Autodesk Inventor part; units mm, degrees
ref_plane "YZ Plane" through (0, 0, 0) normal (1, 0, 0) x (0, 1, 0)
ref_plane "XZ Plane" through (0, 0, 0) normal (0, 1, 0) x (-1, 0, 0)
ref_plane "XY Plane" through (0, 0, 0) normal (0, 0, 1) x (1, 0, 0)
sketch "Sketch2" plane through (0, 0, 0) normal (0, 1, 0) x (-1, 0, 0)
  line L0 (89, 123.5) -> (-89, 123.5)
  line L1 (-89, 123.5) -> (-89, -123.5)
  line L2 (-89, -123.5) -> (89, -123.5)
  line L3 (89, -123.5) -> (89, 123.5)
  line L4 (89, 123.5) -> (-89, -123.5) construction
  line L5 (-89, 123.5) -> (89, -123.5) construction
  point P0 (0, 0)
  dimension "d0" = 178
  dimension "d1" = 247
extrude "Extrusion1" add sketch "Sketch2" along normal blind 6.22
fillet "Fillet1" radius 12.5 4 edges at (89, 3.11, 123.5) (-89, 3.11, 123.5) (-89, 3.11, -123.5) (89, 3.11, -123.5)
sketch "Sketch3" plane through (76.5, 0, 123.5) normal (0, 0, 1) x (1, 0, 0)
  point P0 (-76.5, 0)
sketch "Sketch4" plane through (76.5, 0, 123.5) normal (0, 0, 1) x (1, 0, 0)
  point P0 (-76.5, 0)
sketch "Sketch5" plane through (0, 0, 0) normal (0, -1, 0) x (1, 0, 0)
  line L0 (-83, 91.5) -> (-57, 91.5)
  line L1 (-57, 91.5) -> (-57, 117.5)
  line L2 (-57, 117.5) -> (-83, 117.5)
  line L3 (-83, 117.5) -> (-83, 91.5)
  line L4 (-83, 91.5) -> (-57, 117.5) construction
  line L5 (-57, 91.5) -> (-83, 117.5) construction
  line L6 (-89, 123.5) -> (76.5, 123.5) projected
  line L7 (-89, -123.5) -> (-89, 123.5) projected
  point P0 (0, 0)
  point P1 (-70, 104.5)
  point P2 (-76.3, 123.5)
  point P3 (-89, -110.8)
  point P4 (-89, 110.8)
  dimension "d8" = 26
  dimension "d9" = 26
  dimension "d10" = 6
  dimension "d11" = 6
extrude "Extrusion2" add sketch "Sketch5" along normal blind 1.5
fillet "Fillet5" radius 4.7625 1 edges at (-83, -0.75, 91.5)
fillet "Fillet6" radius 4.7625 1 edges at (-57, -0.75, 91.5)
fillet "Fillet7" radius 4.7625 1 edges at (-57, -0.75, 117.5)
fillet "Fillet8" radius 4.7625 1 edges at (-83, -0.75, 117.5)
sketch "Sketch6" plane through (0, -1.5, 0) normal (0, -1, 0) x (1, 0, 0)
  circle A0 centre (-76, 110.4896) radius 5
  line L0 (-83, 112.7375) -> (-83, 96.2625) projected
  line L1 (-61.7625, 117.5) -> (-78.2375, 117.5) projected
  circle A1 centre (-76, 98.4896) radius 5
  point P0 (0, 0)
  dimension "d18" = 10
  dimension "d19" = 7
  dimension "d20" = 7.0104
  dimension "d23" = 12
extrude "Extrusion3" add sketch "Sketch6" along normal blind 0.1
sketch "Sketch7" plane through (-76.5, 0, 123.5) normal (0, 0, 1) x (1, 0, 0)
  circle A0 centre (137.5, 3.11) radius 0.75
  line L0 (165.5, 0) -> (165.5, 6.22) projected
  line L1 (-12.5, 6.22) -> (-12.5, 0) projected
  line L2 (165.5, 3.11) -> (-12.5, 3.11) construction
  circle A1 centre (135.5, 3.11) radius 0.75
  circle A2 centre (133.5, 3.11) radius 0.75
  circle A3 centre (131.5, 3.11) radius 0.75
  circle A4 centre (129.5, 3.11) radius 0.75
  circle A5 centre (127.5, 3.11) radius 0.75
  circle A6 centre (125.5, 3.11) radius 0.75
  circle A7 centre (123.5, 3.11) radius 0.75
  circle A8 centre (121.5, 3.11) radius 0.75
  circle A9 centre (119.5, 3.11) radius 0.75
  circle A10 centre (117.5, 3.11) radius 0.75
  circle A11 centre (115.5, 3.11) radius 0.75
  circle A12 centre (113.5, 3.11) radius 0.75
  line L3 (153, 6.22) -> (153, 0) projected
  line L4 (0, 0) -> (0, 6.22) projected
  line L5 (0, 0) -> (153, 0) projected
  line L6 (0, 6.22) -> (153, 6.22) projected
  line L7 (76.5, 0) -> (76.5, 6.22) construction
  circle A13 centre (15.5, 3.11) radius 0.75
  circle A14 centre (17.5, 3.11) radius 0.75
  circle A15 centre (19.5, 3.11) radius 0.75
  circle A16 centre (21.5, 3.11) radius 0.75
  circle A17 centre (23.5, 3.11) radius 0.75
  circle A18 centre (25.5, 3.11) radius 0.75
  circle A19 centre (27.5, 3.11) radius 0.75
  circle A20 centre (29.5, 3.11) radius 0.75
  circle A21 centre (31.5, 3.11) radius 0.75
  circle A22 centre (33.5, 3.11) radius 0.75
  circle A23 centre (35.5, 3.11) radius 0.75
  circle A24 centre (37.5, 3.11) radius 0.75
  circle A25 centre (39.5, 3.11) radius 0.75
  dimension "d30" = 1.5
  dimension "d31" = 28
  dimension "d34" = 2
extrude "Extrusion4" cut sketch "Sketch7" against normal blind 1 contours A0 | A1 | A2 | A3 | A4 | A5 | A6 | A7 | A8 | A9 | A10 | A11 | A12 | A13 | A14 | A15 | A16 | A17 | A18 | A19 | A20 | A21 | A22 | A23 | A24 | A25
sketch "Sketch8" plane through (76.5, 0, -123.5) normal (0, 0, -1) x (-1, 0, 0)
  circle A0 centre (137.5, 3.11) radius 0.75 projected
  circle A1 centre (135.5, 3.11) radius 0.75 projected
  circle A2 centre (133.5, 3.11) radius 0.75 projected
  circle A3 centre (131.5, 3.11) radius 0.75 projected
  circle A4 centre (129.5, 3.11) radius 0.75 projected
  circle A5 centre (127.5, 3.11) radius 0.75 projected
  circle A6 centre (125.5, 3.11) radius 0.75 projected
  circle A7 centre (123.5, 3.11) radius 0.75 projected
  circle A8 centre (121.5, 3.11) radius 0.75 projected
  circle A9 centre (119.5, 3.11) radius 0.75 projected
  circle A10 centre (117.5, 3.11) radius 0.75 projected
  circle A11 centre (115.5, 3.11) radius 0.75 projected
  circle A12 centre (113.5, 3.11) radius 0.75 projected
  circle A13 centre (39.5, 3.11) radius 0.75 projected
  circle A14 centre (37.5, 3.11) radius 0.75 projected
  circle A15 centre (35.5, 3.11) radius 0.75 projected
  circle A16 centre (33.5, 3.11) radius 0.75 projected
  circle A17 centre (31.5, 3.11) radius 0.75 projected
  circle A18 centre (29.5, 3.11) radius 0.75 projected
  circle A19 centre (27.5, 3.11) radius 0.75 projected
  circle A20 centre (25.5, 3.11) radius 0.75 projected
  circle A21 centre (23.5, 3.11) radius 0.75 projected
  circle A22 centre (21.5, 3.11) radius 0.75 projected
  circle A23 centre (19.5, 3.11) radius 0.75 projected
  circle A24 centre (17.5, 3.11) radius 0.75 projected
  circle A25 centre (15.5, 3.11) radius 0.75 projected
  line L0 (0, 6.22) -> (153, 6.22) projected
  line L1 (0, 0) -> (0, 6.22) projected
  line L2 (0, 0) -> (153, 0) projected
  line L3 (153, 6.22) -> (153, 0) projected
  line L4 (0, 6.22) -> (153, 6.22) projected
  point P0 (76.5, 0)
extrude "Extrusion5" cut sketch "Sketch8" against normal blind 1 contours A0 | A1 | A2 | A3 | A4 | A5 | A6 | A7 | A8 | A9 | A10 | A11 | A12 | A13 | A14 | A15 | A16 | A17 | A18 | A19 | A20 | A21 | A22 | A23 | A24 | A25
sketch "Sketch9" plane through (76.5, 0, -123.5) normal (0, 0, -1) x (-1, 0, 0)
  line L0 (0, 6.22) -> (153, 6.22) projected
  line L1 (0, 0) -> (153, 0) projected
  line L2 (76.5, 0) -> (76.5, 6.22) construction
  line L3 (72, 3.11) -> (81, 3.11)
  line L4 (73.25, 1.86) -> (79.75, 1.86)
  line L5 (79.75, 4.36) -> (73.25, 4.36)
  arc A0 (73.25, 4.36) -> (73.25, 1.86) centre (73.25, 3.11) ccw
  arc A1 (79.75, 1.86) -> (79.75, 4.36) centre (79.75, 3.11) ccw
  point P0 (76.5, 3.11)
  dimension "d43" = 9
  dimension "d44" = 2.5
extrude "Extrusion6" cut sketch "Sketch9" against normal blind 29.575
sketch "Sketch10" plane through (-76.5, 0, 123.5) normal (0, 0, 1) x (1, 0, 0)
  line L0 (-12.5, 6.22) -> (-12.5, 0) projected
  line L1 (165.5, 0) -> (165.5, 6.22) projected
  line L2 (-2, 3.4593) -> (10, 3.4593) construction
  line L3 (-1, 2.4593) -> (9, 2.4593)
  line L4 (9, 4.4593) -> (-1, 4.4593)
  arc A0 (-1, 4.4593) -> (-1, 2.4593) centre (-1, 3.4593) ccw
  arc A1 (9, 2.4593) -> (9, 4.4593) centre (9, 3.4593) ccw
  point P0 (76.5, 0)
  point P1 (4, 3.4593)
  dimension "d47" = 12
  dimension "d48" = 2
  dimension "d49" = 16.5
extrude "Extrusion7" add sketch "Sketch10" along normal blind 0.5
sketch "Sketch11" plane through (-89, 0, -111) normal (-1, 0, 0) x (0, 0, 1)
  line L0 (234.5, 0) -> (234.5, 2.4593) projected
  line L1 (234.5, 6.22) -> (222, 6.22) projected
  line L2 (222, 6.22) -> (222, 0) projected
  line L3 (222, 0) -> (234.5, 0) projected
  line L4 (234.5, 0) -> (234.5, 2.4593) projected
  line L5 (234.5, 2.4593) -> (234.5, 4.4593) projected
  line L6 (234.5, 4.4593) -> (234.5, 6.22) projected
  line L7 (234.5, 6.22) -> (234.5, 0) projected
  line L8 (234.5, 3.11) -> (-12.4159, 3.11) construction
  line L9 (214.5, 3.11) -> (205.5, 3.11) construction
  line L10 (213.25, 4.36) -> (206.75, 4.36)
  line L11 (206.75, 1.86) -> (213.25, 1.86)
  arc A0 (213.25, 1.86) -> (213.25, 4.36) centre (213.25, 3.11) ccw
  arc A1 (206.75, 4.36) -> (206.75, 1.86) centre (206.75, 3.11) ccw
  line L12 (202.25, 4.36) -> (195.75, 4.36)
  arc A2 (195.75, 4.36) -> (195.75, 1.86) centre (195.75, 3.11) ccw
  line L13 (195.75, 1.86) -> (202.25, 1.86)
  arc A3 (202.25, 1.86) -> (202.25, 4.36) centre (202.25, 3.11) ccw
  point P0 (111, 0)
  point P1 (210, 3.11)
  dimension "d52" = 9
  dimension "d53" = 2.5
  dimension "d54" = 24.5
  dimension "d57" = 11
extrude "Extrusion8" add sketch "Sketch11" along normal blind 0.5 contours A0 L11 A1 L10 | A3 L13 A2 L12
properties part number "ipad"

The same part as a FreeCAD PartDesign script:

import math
import FreeCAD as App
import Part
import Sketcher

V = App.Vector
Q = App.Units.Quantity


def edges_at(feature, points):
    """Names of the edges that pass closest to the given points."""
    edges = feature.Shape.Edges
    near = lambda p: min(range(len(edges)), key=lambda i: edges[i].distToShape(Part.Vertex(*p))[0])
    return sorted({f"Edge{near(p) + 1}" for p in points})

doc = App.newDocument("Part")
body = doc.addObject("PartDesign::Body", "Body")

# Sketch on XZ plane
sketch1 = doc.addObject("Sketcher::SketchObject", "Sketch")
body.addObject(sketch1)
sketch1.AttachmentSupport = (doc.XZ_Plane, [""])
sketch1.MapMode = "FlatFace"
sketch1.addGeometry([
    Part.LineSegment(V(-89, -124, 0), V(-89, 124, 0)),
    Part.LineSegment(V(-89, 124, 0), V(89, 124, 0)),
    Part.LineSegment(V(89, 124, 0), V(89, -124, 0)),
    Part.LineSegment(V(89, -124, 0), V(-89, -124, 0)),
], False)
sketch1.addConstraint([
    Sketcher.Constraint("Coincident", 0, 2, 1, 1),
    Sketcher.Constraint("Coincident", 1, 2, 2, 1),
    Sketcher.Constraint("Coincident", 2, 2, 3, 1),
    Sketcher.Constraint("Coincident", 3, 2, 0, 1),
    Sketcher.Constraint("Vertical", 0),
    Sketcher.Constraint("Horizontal", 1),
    Sketcher.Constraint("Vertical", 2),
    Sketcher.Constraint("Horizontal", 3),
    Sketcher.Constraint("Symmetric", 0, 2, 2, 2, -1, 1),
    Sketcher.Constraint("DistanceX", 1, 1, 1, 2, Q("178 mm")),
    Sketcher.Constraint("DistanceY", 0, 1, 0, 2, Q("247 mm")),
])
pad1 = doc.addObject("PartDesign::Pad", "Pad")
body.addObject(pad1)
pad1.Profile = sketch1
pad1.Length = 6.22
pad1.Reversed = True
doc.recompute()

fillet = doc.addObject("PartDesign::Fillet", "Fillet")
body.addObject(fillet)
fillet.Base = (pad1, edges_at(pad1, [
    (89, 3.11, 123.5),
    (-89, 3.11, 123.5),
    (-89, 3.11, -123.5),
    (89, 3.11, -123.5),
]))
fillet.Radius = 12.5

# Sketch on XZ plane
sketch2 = doc.addObject("Sketcher::SketchObject", "Sketch001")
body.addObject(sketch2)
sketch2.AttachmentSupport = (doc.XZ_Plane, [""])
sketch2.MapMode = "FlatFace"
sketch2.addGeometry([
    Part.LineSegment(V(-83, 118, 0), V(-83, 92, 0)),
    Part.LineSegment(V(-83, 92, 0), V(-57, 92, 0)),
    Part.LineSegment(V(-57, 92, 0), V(-57, 118, 0)),
    Part.LineSegment(V(-57, 118, 0), V(-83, 118, 0)),
], False)
sketch2.addConstraint([
    Sketcher.Constraint("Coincident", 0, 2, 1, 1),
    Sketcher.Constraint("Coincident", 1, 2, 2, 1),
    Sketcher.Constraint("Coincident", 2, 2, 3, 1),
    Sketcher.Constraint("Coincident", 3, 2, 0, 1),
    Sketcher.Constraint("Vertical", 0),
    Sketcher.Constraint("Horizontal", 1),
    Sketcher.Constraint("Vertical", 2),
    Sketcher.Constraint("Horizontal", 3),
    Sketcher.Constraint("Equal", 3, 0),
    Sketcher.Constraint("DistanceX", 1, 1, 1, 2, Q("26 mm")),
    Sketcher.Constraint("DistanceX", 0, 2, -1, 1, Q("83 mm")),
    Sketcher.Constraint("DistanceY", -1, 1, 0, 2, Q("91.5 mm")),
])
pad2 = doc.addObject("PartDesign::Pad", "Pad001")
body.addObject(pad2)
pad2.Profile = sketch2
pad2.Length = 1.5
doc.recompute()

fillet2 = doc.addObject("PartDesign::Fillet", "Fillet001")
body.addObject(fillet2)
fillet2.Base = (pad2, edges_at(pad2, [(-83, -0.75, 91.5)]))
fillet2.Radius = 4.7625
doc.recompute()

fillet3 = doc.addObject("PartDesign::Fillet", "Fillet002")
body.addObject(fillet3)
fillet3.Base = (fillet2, edges_at(fillet2, [(-57, -0.75, 91.5)]))
fillet3.Radius = 4.7625
doc.recompute()

fillet4 = doc.addObject("PartDesign::Fillet", "Fillet003")
body.addObject(fillet4)
fillet4.Base = (fillet3, edges_at(fillet3, [(-57, -0.75, 117.5)]))
fillet4.Radius = 4.7625
doc.recompute()

fillet5 = doc.addObject("PartDesign::Fillet", "Fillet004")
body.addObject(fillet5)
fillet5.Base = (fillet4, edges_at(fillet4, [(-83, -0.75, 117.5)]))
fillet5.Radius = 4.7625

# Sketch on XZ plane
sketch3 = doc.addObject("Sketcher::SketchObject", "Sketch002")
body.addObject(sketch3)
sketch3.AttachmentSupport = (doc.XZ_Plane, [""])
sketch3.MapMode = "FlatFace"
sketch3.AttachmentOffset = App.Placement(V(0, 0, 1.5), App.Rotation())
sketch3.addGeometry([
    Part.Circle(V(-76, 110, 0), V(0, 0, 1), 5),
    Part.Circle(V(-76, 98, 0), V(0, 0, 1), 5),
], False)
sketch3.addConstraint([
    Sketcher.Constraint("Equal", 0, 1),
    Sketcher.Constraint("Vertical", 0, 3, 1, 3),
    Sketcher.Constraint("Diameter", 0, Q("10 mm")),
    Sketcher.Constraint("DistanceY", 1, 3, 0, 3, Q("12 mm")),
    Sketcher.Constraint("DistanceX", 0, 3, -1, 1, Q("76 mm")),
    Sketcher.Constraint("DistanceY", -1, 1, 0, 3, Q("110.4896 mm")),
])
pad3 = doc.addObject("PartDesign::Pad", "Pad002")
body.addObject(pad3)
pad3.Profile = sketch3
pad3.Length = 0.1

# Sketch on XY plane
sketch4 = doc.addObject("Sketcher::SketchObject", "Sketch003")
body.addObject(sketch4)
sketch4.AttachmentSupport = (doc.XY_Plane, [""])
sketch4.MapMode = "FlatFace"
sketch4.AttachmentOffset = App.Placement(V(0, 0, 123.5), App.Rotation())
sketch4.addGeometry([
    Part.Circle(V(61, 3.1, 0), V(0, 0, 1), 0.8),  # 0
    Part.Circle(V(59, 3.1, 0), V(0, 0, 1), 0.8),  # 1
    Part.Circle(V(57, 3.1, 0), V(0, 0, 1), 0.8),  # 2
    Part.Circle(V(55, 3.1, 0), V(0, 0, 1), 0.8),  # 3
    Part.Circle(V(53, 3.1, 0), V(0, 0, 1), 0.8),  # 4
    Part.Circle(V(51, 3.1, 0), V(0, 0, 1), 0.8),  # 5
    Part.Circle(V(49, 3.1, 0), V(0, 0, 1), 0.8),  # 6
    Part.Circle(V(47, 3.1, 0), V(0, 0, 1), 0.8),  # 7
    Part.Circle(V(45, 3.1, 0), V(0, 0, 1), 0.8),  # 8
    Part.Circle(V(43, 3.1, 0), V(0, 0, 1), 0.8),  # 9
    Part.Circle(V(41, 3.1, 0), V(0, 0, 1), 0.8),  # 10
    Part.Circle(V(39, 3.1, 0), V(0, 0, 1), 0.8),  # 11
    Part.Circle(V(37, 3.1, 0), V(0, 0, 1), 0.8),  # 12
    Part.Circle(V(-61, 3.1, 0), V(0, 0, 1), 0.8),  # 13
    Part.Circle(V(-59, 3.1, 0), V(0, 0, 1), 0.8),  # 14
    Part.Circle(V(-57, 3.1, 0), V(0, 0, 1), 0.8),  # 15
    Part.Circle(V(-55, 3.1, 0), V(0, 0, 1), 0.8),  # 16
    Part.Circle(V(-53, 3.1, 0), V(0, 0, 1), 0.8),  # 17
    Part.Circle(V(-51, 3.1, 0), V(0, 0, 1), 0.8),  # 18
    Part.Circle(V(-49, 3.1, 0), V(0, 0, 1), 0.8),  # 19
    Part.Circle(V(-47, 3.1, 0), V(0, 0, 1), 0.8),  # 20
    Part.Circle(V(-45, 3.1, 0), V(0, 0, 1), 0.8),  # 21
    Part.Circle(V(-43, 3.1, 0), V(0, 0, 1), 0.8),  # 22
    Part.Circle(V(-41, 3.1, 0), V(0, 0, 1), 0.8),  # 23
    Part.Circle(V(-39, 3.1, 0), V(0, 0, 1), 0.8),  # 24
    Part.Circle(V(-37, 3.1, 0), V(0, 0, 1), 0.8),  # 25
], False)
sketch4.addConstraint([
    Sketcher.Constraint("Equal", 0, 1),
    Sketcher.Constraint("Equal", 1, 2),
    Sketcher.Constraint("Equal", 2, 3),
    Sketcher.Constraint("Equal", 3, 4),
    Sketcher.Constraint("Equal", 4, 5),
    Sketcher.Constraint("Equal", 5, 6),
    Sketcher.Constraint("Equal", 6, 7),
    Sketcher.Constraint("Equal", 7, 8),
    Sketcher.Constraint("Equal", 8, 9),
    Sketcher.Constraint("Equal", 9, 10),
    Sketcher.Constraint("Equal", 10, 11),
    Sketcher.Constraint("Equal", 11, 12),
    Sketcher.Constraint("Equal", 12, 13),
    Sketcher.Constraint("Equal", 13, 14),
    Sketcher.Constraint("Equal", 14, 15),
    Sketcher.Constraint("Equal", 15, 16),
    Sketcher.Constraint("Equal", 16, 17),
    Sketcher.Constraint("Equal", 17, 18),
    Sketcher.Constraint("Equal", 18, 19),
    Sketcher.Constraint("Equal", 19, 20),
    Sketcher.Constraint("Equal", 20, 21),
    Sketcher.Constraint("Equal", 21, 22),
    Sketcher.Constraint("Equal", 22, 23),
    Sketcher.Constraint("Equal", 23, 24),
    Sketcher.Constraint("Equal", 24, 25),
    Sketcher.Constraint("Symmetric", 0, 3, 13, 3, -2),
    Sketcher.Constraint("Symmetric", 1, 3, 14, 3, -2),
    Sketcher.Constraint("Symmetric", 2, 3, 15, 3, -2),
    Sketcher.Constraint("Symmetric", 3, 3, 16, 3, -2),
    Sketcher.Constraint("Symmetric", 4, 3, 17, 3, -2),
    Sketcher.Constraint("Symmetric", 5, 3, 18, 3, -2),
    Sketcher.Constraint("Symmetric", 6, 3, 19, 3, -2),
    Sketcher.Constraint("Symmetric", 7, 3, 20, 3, -2),
    Sketcher.Constraint("Symmetric", 8, 3, 21, 3, -2),
    Sketcher.Constraint("Symmetric", 9, 3, 22, 3, -2),
    Sketcher.Constraint("Symmetric", 10, 3, 23, 3, -2),
    Sketcher.Constraint("Symmetric", 11, 3, 24, 3, -2),
    Sketcher.Constraint("Symmetric", 12, 3, 25, 3, -2),
    Sketcher.Constraint("Horizontal", 0, 3, 1, 3),
    Sketcher.Constraint("Horizontal", 1, 3, 2, 3),
    Sketcher.Constraint("Horizontal", 2, 3, 3, 3),
    Sketcher.Constraint("Horizontal", 3, 3, 4, 3),
    Sketcher.Constraint("Horizontal", 4, 3, 5, 3),
    Sketcher.Constraint("Horizontal", 5, 3, 6, 3),
    Sketcher.Constraint("Horizontal", 6, 3, 7, 3),
    Sketcher.Constraint("Horizontal", 7, 3, 8, 3),
    Sketcher.Constraint("Horizontal", 8, 3, 9, 3),
    Sketcher.Constraint("Horizontal", 9, 3, 10, 3),
    Sketcher.Constraint("Horizontal", 10, 3, 11, 3),
    Sketcher.Constraint("Horizontal", 11, 3, 12, 3),
    Sketcher.Constraint("Diameter", 0, Q("1.5 mm")),
    Sketcher.Constraint("DistanceX", 1, 3, 0, 3, Q("2 mm")),
    Sketcher.Constraint("DistanceX", 2, 3, 1, 3, Q("2 mm")),
    Sketcher.Constraint("DistanceX", 3, 3, 2, 3, Q("2 mm")),
    Sketcher.Constraint("DistanceX", 4, 3, 3, 3, Q("2 mm")),
    Sketcher.Constraint("DistanceX", 5, 3, 4, 3, Q("2 mm")),
    Sketcher.Constraint("DistanceX", 6, 3, 5, 3, Q("2 mm")),
    Sketcher.Constraint("DistanceX", 7, 3, 6, 3, Q("2 mm")),
    Sketcher.Constraint("DistanceX", 8, 3, 7, 3, Q("2 mm")),
    Sketcher.Constraint("DistanceX", 9, 3, 8, 3, Q("2 mm")),
    Sketcher.Constraint("DistanceX", 10, 3, 9, 3, Q("2 mm")),
    Sketcher.Constraint("DistanceX", 11, 3, 10, 3, Q("2 mm")),
    Sketcher.Constraint("DistanceX", 12, 3, 11, 3, Q("2 mm")),
    Sketcher.Constraint("DistanceX", -1, 1, 0, 3, Q("61 mm")),
    Sketcher.Constraint("DistanceY", -1, 1, 0, 3, Q("3.11 mm")),
])
pocket1 = doc.addObject("PartDesign::Pocket", "Pocket")
body.addObject(pocket1)
pocket1.Profile = sketch4
pocket1.Length = 1

# Sketch on XY plane
sketch5 = doc.addObject("Sketcher::SketchObject", "Sketch004")
body.addObject(sketch5)
sketch5.AttachmentSupport = (doc.XY_Plane, [""])
sketch5.MapMode = "FlatFace"
sketch5.AttachmentOffset = App.Placement(V(0, 0, -123.5), App.Rotation())
sketch5.addGeometry([
    Part.Circle(V(-61, 3.1, 0), V(0, 0, 1), 0.8),  # 0
    Part.Circle(V(-59, 3.1, 0), V(0, 0, 1), 0.8),  # 1
    Part.Circle(V(-57, 3.1, 0), V(0, 0, 1), 0.8),  # 2
    Part.Circle(V(-55, 3.1, 0), V(0, 0, 1), 0.8),  # 3
    Part.Circle(V(-53, 3.1, 0), V(0, 0, 1), 0.8),  # 4
    Part.Circle(V(-51, 3.1, 0), V(0, 0, 1), 0.8),  # 5
    Part.Circle(V(-49, 3.1, 0), V(0, 0, 1), 0.8),  # 6
    Part.Circle(V(-47, 3.1, 0), V(0, 0, 1), 0.8),  # 7
    Part.Circle(V(-45, 3.1, 0), V(0, 0, 1), 0.8),  # 8
    Part.Circle(V(-43, 3.1, 0), V(0, 0, 1), 0.8),  # 9
    Part.Circle(V(-41, 3.1, 0), V(0, 0, 1), 0.8),  # 10
    Part.Circle(V(-39, 3.1, 0), V(0, 0, 1), 0.8),  # 11
    Part.Circle(V(-37, 3.1, 0), V(0, 0, 1), 0.8),  # 12
    Part.Circle(V(37, 3.1, 0), V(0, 0, 1), 0.8),  # 13
    Part.Circle(V(39, 3.1, 0), V(0, 0, 1), 0.8),  # 14
    Part.Circle(V(41, 3.1, 0), V(0, 0, 1), 0.8),  # 15
    Part.Circle(V(43, 3.1, 0), V(0, 0, 1), 0.8),  # 16
    Part.Circle(V(45, 3.1, 0), V(0, 0, 1), 0.8),  # 17
    Part.Circle(V(47, 3.1, 0), V(0, 0, 1), 0.8),  # 18
    Part.Circle(V(49, 3.1, 0), V(0, 0, 1), 0.8),  # 19
    Part.Circle(V(51, 3.1, 0), V(0, 0, 1), 0.8),  # 20
    Part.Circle(V(53, 3.1, 0), V(0, 0, 1), 0.8),  # 21
    Part.Circle(V(55, 3.1, 0), V(0, 0, 1), 0.8),  # 22
    Part.Circle(V(57, 3.1, 0), V(0, 0, 1), 0.8),  # 23
    Part.Circle(V(59, 3.1, 0), V(0, 0, 1), 0.8),  # 24
    Part.Circle(V(61, 3.1, 0), V(0, 0, 1), 0.8),  # 25
], False)
sketch5.addConstraint([
    Sketcher.Constraint("Equal", 0, 1),
    Sketcher.Constraint("Equal", 1, 2),
    Sketcher.Constraint("Equal", 2, 3),
    Sketcher.Constraint("Equal", 3, 4),
    Sketcher.Constraint("Equal", 4, 5),
    Sketcher.Constraint("Equal", 5, 6),
    Sketcher.Constraint("Equal", 6, 7),
    Sketcher.Constraint("Equal", 7, 8),
    Sketcher.Constraint("Equal", 8, 9),
    Sketcher.Constraint("Equal", 9, 10),
    Sketcher.Constraint("Equal", 10, 11),
    Sketcher.Constraint("Equal", 11, 12),
    Sketcher.Constraint("Equal", 12, 13),
    Sketcher.Constraint("Equal", 13, 14),
    Sketcher.Constraint("Equal", 14, 15),
    Sketcher.Constraint("Equal", 15, 16),
    Sketcher.Constraint("Equal", 16, 17),
    Sketcher.Constraint("Equal", 17, 18),
    Sketcher.Constraint("Equal", 18, 19),
    Sketcher.Constraint("Equal", 19, 20),
    Sketcher.Constraint("Equal", 20, 21),
    Sketcher.Constraint("Equal", 21, 22),
    Sketcher.Constraint("Equal", 22, 23),
    Sketcher.Constraint("Equal", 23, 24),
    Sketcher.Constraint("Equal", 24, 25),
    Sketcher.Constraint("Symmetric", 12, 3, 13, 3, -2),
    Sketcher.Constraint("Symmetric", 11, 3, 14, 3, -2),
    Sketcher.Constraint("Symmetric", 10, 3, 15, 3, -2),
    Sketcher.Constraint("Symmetric", 9, 3, 16, 3, -2),
    Sketcher.Constraint("Symmetric", 8, 3, 17, 3, -2),
    Sketcher.Constraint("Symmetric", 7, 3, 18, 3, -2),
    Sketcher.Constraint("Symmetric", 6, 3, 19, 3, -2),
    Sketcher.Constraint("Symmetric", 5, 3, 20, 3, -2),
    Sketcher.Constraint("Symmetric", 4, 3, 21, 3, -2),
    Sketcher.Constraint("Symmetric", 3, 3, 22, 3, -2),
    Sketcher.Constraint("Symmetric", 2, 3, 23, 3, -2),
    Sketcher.Constraint("Symmetric", 1, 3, 24, 3, -2),
    Sketcher.Constraint("Symmetric", 0, 3, 25, 3, -2),
    Sketcher.Constraint("Horizontal", 0, 3, 1, 3),
    Sketcher.Constraint("Horizontal", 1, 3, 2, 3),
    Sketcher.Constraint("Horizontal", 2, 3, 3, 3),
    Sketcher.Constraint("Horizontal", 3, 3, 4, 3),
    Sketcher.Constraint("Horizontal", 4, 3, 5, 3),
    Sketcher.Constraint("Horizontal", 5, 3, 6, 3),
    Sketcher.Constraint("Horizontal", 6, 3, 7, 3),
    Sketcher.Constraint("Horizontal", 7, 3, 8, 3),
    Sketcher.Constraint("Horizontal", 8, 3, 9, 3),
    Sketcher.Constraint("Horizontal", 9, 3, 10, 3),
    Sketcher.Constraint("Horizontal", 10, 3, 11, 3),
    Sketcher.Constraint("Horizontal", 11, 3, 12, 3),
    Sketcher.Constraint("Diameter", 0, Q("1.5 mm")),
    Sketcher.Constraint("DistanceX", 0, 3, -1, 1, Q("61 mm")),
    Sketcher.Constraint("DistanceX", 1, 3, -1, 1, Q("59 mm")),
    Sketcher.Constraint("DistanceX", 2, 3, -1, 1, Q("57 mm")),
    Sketcher.Constraint("DistanceX", 3, 3, -1, 1, Q("55 mm")),
    Sketcher.Constraint("DistanceX", 4, 3, -1, 1, Q("53 mm")),
    Sketcher.Constraint("DistanceX", 5, 3, -1, 1, Q("51 mm")),
    Sketcher.Constraint("DistanceX", 6, 3, -1, 1, Q("49 mm")),
    Sketcher.Constraint("DistanceX", 7, 3, -1, 1, Q("47 mm")),
    Sketcher.Constraint("DistanceX", 8, 3, -1, 1, Q("45 mm")),
    Sketcher.Constraint("DistanceX", 9, 3, -1, 1, Q("43 mm")),
    Sketcher.Constraint("DistanceX", 10, 3, -1, 1, Q("41 mm")),
    Sketcher.Constraint("DistanceX", 11, 3, -1, 1, Q("39 mm")),
    Sketcher.Constraint("DistanceX", 12, 3, -1, 1, Q("37 mm")),
    Sketcher.Constraint("DistanceY", -1, 1, 0, 3, Q("3.11 mm")),
])
pocket2 = doc.addObject("PartDesign::Pocket", "Pocket001")
body.addObject(pocket2)
pocket2.Profile = sketch5
pocket2.Length = 1
pocket2.Reversed = True

# Sketch on XY plane
sketch6 = doc.addObject("Sketcher::SketchObject", "Sketch005")
body.addObject(sketch6)
sketch6.AttachmentSupport = (doc.XY_Plane, [""])
sketch6.MapMode = "FlatFace"
sketch6.AttachmentOffset = App.Placement(V(0, 0, -123.5), App.Rotation())
sketch6.addGeometry([
    Part.ArcOfCircle(Part.Circle(V(3.2, 3.1, 0), V(0, 0, 1), 1.3), math.radians(-90), math.radians(90)),
    Part.LineSegment(V(3.2, 1.9, 0), V(-3.2, 1.9, 0)),
    Part.ArcOfCircle(Part.Circle(V(-3.2, 3.1, 0), V(0, 0, 1), 1.2), math.radians(90), math.radians(270)),
    Part.LineSegment(V(-3.2, 4.4, 0), V(3.2, 4.4, 0)),
], False)
sketch6.addConstraint([
    Sketcher.Constraint("Tangent", 0, 1, 1, 1),
    Sketcher.Constraint("Tangent", 1, 2, 2, 2),
    Sketcher.Constraint("Tangent", 2, 1, 3, 1),
    Sketcher.Constraint("Tangent", 3, 2, 0, 2),
    Sketcher.Constraint("Horizontal", 1),
    Sketcher.Constraint("Horizontal", 3),
    Sketcher.Constraint("Radius", 0, Q("1.25 mm")),
    Sketcher.Constraint("DistanceX", 1, 2, 1, 1, Q("6.5 mm")),
    Sketcher.Constraint("DistanceX", -1, 1, 0, 3, Q("3.25 mm")),
    Sketcher.Constraint("DistanceY", -1, 1, 0, 3, Q("3.11 mm")),
])
pocket3 = doc.addObject("PartDesign::Pocket", "Pocket002")
body.addObject(pocket3)
pocket3.Profile = sketch6
pocket3.Length = 29.575
pocket3.Reversed = True

# Sketch on XY plane
sketch7 = doc.addObject("Sketcher::SketchObject", "Sketch006")
body.addObject(sketch7)
sketch7.AttachmentSupport = (doc.XY_Plane, [""])
sketch7.MapMode = "FlatFace"
sketch7.AttachmentOffset = App.Placement(V(0, 0, 123.5), App.Rotation())
sketch7.addGeometry([
    Part.ArcOfCircle(Part.Circle(V(-77.5, 3.5, 0), V(0, 0, 1), 1), math.radians(90), math.radians(270)),
    Part.LineSegment(V(-77.5, 2.5, 0), V(-67.5, 2.5, 0)),
    Part.ArcOfCircle(Part.Circle(V(-67.5, 3.5, 0), V(0, 0, 1), 1), math.radians(-90), math.radians(90)),
    Part.LineSegment(V(-67.5, 4.5, 0), V(-77.5, 4.5, 0)),
], False)
sketch7.addConstraint([
    Sketcher.Constraint("Tangent", 0, 2, 1, 1),
    Sketcher.Constraint("Tangent", 1, 2, 2, 1),
    Sketcher.Constraint("Tangent", 2, 2, 3, 1),
    Sketcher.Constraint("Tangent", 3, 2, 0, 1),
    Sketcher.Constraint("Horizontal", 1),
    Sketcher.Constraint("Horizontal", 3),
    Sketcher.Constraint("Radius", 0, Q("1 mm")),
    Sketcher.Constraint("DistanceX", 1, 1, 1, 2, Q("10 mm")),
    Sketcher.Constraint("DistanceX", 0, 3, -1, 1, Q("77.5 mm")),
    Sketcher.Constraint("DistanceY", -1, 1, 0, 3, Q("3.4593 mm")),
])
pad4 = doc.addObject("PartDesign::Pad", "Pad003")
body.addObject(pad4)
pad4.Profile = sketch7
pad4.Length = 0.5

# Sketch on YZ plane
sketch8 = doc.addObject("Sketcher::SketchObject", "Sketch007")
body.addObject(sketch8)
sketch8.AttachmentSupport = (doc.YZ_Plane, [""])
sketch8.MapMode = "FlatFace"
sketch8.AttachmentOffset = App.Placement(V(0, 0, -89), App.Rotation())
sketch8.addGeometry([
    Part.ArcOfCircle(Part.Circle(V(3.1, 102.2, 0), V(0, 0, 1), 1.2), math.radians(0), math.radians(180)),  # 0
    Part.LineSegment(V(4.4, 102.2, 0), V(4.4, 95.8, 0)),  # 1
    Part.ArcOfCircle(Part.Circle(V(3.1, 95.8, 0), V(0, 0, 1), 1.3), math.radians(180), math.radians(360)),  # 2
    Part.LineSegment(V(1.9, 95.8, 0), V(1.9, 102.2, 0)),  # 3
    Part.ArcOfCircle(Part.Circle(V(3.1, 91.2, 0), V(0, 0, 1), 1.2), math.radians(0), math.radians(180)),  # 4
    Part.LineSegment(V(4.4, 91.2, 0), V(4.4, 84.8, 0)),  # 5
    Part.ArcOfCircle(Part.Circle(V(3.1, 84.8, 0), V(0, 0, 1), 1.3), math.radians(180), math.radians(360)),  # 6
    Part.LineSegment(V(1.9, 84.8, 0), V(1.9, 91.2, 0)),  # 7
], False)
sketch8.addConstraint([
    Sketcher.Constraint("Tangent", 0, 1, 1, 1),
    Sketcher.Constraint("Tangent", 1, 2, 2, 2),
    Sketcher.Constraint("Tangent", 2, 1, 3, 1),
    Sketcher.Constraint("Tangent", 3, 2, 0, 2),
    Sketcher.Constraint("Tangent", 4, 1, 5, 1),
    Sketcher.Constraint("Tangent", 5, 2, 6, 2),
    Sketcher.Constraint("Tangent", 6, 1, 7, 1),
    Sketcher.Constraint("Tangent", 7, 2, 4, 2),
    Sketcher.Constraint("Vertical", 1),
    Sketcher.Constraint("Vertical", 3),
    Sketcher.Constraint("Vertical", 5),
    Sketcher.Constraint("Vertical", 7),
    Sketcher.Constraint("Equal", 2, 4),
    Sketcher.Constraint("Vertical", 2, 3, 4, 3),
    Sketcher.Constraint("Equal", 3, 5),
    Sketcher.Constraint("Radius", 0, Q("1.25 mm")),
    Sketcher.Constraint("DistanceY", 4, 3, 0, 3, Q("11 mm")),
    Sketcher.Constraint("DistanceY", 1, 2, 1, 1, Q("6.5 mm")),
    Sketcher.Constraint("DistanceX", -1, 1, 0, 3, Q("3.11 mm")),
    Sketcher.Constraint("DistanceY", -1, 1, 0, 3, Q("102.25 mm")),
])
pad5 = doc.addObject("PartDesign::Pad", "Pad004")
body.addObject(pad5)
pad5.Profile = sketch8
pad5.Length = 0.5
pad5.Reversed = True

doc.recompute()
